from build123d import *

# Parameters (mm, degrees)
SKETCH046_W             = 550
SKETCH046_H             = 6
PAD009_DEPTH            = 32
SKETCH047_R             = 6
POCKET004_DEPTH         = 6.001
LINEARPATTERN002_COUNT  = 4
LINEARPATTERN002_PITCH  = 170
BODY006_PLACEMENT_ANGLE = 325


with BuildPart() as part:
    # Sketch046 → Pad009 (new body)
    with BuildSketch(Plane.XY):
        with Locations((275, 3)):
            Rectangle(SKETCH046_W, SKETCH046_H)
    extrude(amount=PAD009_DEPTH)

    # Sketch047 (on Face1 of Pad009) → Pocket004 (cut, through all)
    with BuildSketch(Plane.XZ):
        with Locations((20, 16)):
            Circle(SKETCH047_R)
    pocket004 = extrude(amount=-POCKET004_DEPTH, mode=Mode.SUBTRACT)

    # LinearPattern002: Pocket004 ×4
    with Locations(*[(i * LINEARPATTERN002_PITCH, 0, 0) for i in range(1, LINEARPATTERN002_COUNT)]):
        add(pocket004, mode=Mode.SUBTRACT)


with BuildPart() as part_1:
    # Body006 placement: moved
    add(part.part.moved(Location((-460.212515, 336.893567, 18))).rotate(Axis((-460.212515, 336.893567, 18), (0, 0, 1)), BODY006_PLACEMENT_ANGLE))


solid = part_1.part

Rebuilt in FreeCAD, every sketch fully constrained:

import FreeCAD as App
import Part
import Sketcher

V = App.Vector
Q = App.Units.Quantity


def add_polygon(sketch, points):
    """Adds a closed chain of lines whose ends are joined by coincident constraints."""
    first, n = sketch.GeometryCount, len(points)
    for a, b in zip(points, points[1:] + points[:1]):
        sketch.addGeometry(Part.LineSegment(App.Vector(*a, 0), App.Vector(*b, 0)), False)
    for i in range(n):
        sketch.addConstraint(Sketcher.Constraint("Coincident", first + i, 2, first + (i + 1) % n, 1))

doc = App.newDocument("Part")
params = doc.addObject("Spreadsheet::Sheet", "Params")
for row, (alias, value) in enumerate([
    ("sketch1_width", "550 mm"),
    ("sketch1_height", "6 mm"),
    ("pad1_length", "32 mm"),
    ("sketch2_diameter", "12 mm"),
    ("linearpattern_pitch", "170 mm"),
], start=1):
    params.set(f"A{row}", alias)
    params.set(f"B{row}", "=" + value)
    params.setAlias(f"B{row}", alias)

body = doc.addObject("PartDesign::Body", "Body")

# Sketch on XY plane
sketch1 = doc.addObject("Sketcher::SketchObject", "Sketch")
body.addObject(sketch1)
sketch1.AttachmentSupport = (doc.XY_Plane, [""])
sketch1.MapMode = "FlatFace"
add_polygon(sketch1, [(0, 6), (0, 0), (550, 0), (550, 6)])  # lines 0-3
sketch1.addConstraint(Sketcher.Constraint("Vertical", 0))
sketch1.addConstraint(Sketcher.Constraint("Horizontal", 1))
sketch1.addConstraint(Sketcher.Constraint("Vertical", 2))
sketch1.addConstraint(Sketcher.Constraint("Horizontal", 3))
sketch1.addConstraint(Sketcher.Constraint("Coincident", 0, 2, -1, 1))
sketch1.addConstraint(Sketcher.Constraint("DistanceX", 1, 1, 1, 2, Q("550 mm")))
sketch1.addConstraint(Sketcher.Constraint("DistanceY", 0, 2, 0, 1, Q("6 mm")))
sketch1.setExpression("Constraints[9]", "Params.sketch1_width")
sketch1.setExpression("Constraints[10]", "Params.sketch1_height")
pad1 = doc.addObject("PartDesign::Pad", "Pad")
body.addObject(pad1)
pad1.Profile = sketch1
pad1.setExpression("Length", "Params.pad1_length")

# Sketch on XZ plane
sketch2 = doc.addObject("Sketcher::SketchObject", "Sketch001")
body.addObject(sketch2)
sketch2.AttachmentSupport = (doc.XZ_Plane, [""])
sketch2.MapMode = "FlatFace"
sketch2.addGeometry(Part.Circle(V(20, 16, 0), V(0, 0, 1), 6), False)
sketch2.addConstraint(Sketcher.Constraint("Diameter", 0, Q("12 mm")))
sketch2.addConstraint(Sketcher.Constraint("DistanceX", -1, 1, 0, 3, Q("20 mm")))
sketch2.addConstraint(Sketcher.Constraint("DistanceY", -1, 1, 0, 3, Q("16 mm")))
sketch2.setExpression("Constraints[0]", "Params.sketch2_diameter")
pocket1 = doc.addObject("PartDesign::Pocket", "Pocket")
body.addObject(pocket1)
pocket1.Profile = sketch2
pocket1.Type = "ThroughAll"
doc.recompute()

linearpattern = doc.addObject("PartDesign::LinearPattern", "LinearPattern")
body.addObject(linearpattern)
linearpattern.Originals = [pocket1]
linearpattern.Direction = (doc.X_Axis, [""])
linearpattern.Mode = "offset"
linearpattern.setExpression("Offset", "Params.linearpattern_pitch")
linearpattern.Occurrences = 4
body.Tip = linearpattern
body2 = doc.addObject("PartDesign::Body", "Body001")
doc.recompute()

body.Placement = App.Placement(V(-460.212515, 336.893567, 18), App.Rotation(V(0, 0, 1), 325))
boolean = doc.addObject("PartDesign::Boolean", "Boolean")
body2.addObject(boolean)
boolean.Type = "Fuse"
boolean.addObjects([body])

doc.recompute()
